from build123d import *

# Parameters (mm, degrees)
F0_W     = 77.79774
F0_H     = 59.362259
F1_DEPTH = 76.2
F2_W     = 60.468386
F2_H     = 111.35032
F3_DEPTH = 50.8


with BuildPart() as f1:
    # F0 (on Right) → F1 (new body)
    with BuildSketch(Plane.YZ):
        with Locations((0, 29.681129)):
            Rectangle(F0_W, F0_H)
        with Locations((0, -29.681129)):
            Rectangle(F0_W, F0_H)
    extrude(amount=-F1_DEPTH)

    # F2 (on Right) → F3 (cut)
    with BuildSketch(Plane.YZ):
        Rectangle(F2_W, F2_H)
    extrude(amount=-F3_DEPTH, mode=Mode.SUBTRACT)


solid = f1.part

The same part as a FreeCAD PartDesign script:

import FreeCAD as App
import Part
import Sketcher
from FreeCAD import Vector
Q = App.Units.Quantity

doc = App.newDocument("Part")
body = doc.addObject("PartDesign::Body", "Body")

# Sketch on YZ plane
sketch1 = doc.addObject("Sketcher::SketchObject", "Sketch")
body.addObject(sketch1)
sketch1.AttachmentSupport = (doc.YZ_Plane, [""])
sketch1.MapMode = "FlatFace"
sketch1.addGeometry([
    Part.LineSegment(Vector(-38.89887, -59.362259, 0), Vector(38.89887, -59.362259, 0)),
    Part.LineSegment(Vector(38.89887, -59.362259, 0), Vector(38.89887, 59.362259, 0)),
    Part.LineSegment(Vector(38.89887, 59.362259, 0), Vector(-38.89887, 59.362259, 0)),
    Part.LineSegment(Vector(-38.89887, 59.362259, 0), Vector(-38.89887, -59.362259, 0)),
], False)
sketch1.addConstraint([
    Sketcher.Constraint("Coincident", 0, 2, 1, 1),
    Sketcher.Constraint("Coincident", 1, 2, 2, 1),
    Sketcher.Constraint("Coincident", 2, 2, 3, 1),
    Sketcher.Constraint("Coincident", 3, 2, 0, 1),
    Sketcher.Constraint("Horizontal", 0),
    Sketcher.Constraint("Vertical", 1),
    Sketcher.Constraint("Horizontal", 2),
    Sketcher.Constraint("Vertical", 3),
    Sketcher.Constraint("Symmetric", 0, 2, 2, 2, -1, 1),
    Sketcher.Constraint("DistanceX", 0, 1, 0, 2, 77.79774),
    Sketcher.Constraint("DistanceY", 1, 1, 1, 2, 118.724517),
])
pad1 = doc.addObject("PartDesign::Pad", "Pad")
body.addObject(pad1)
pad1.Profile = sketch1
pad1.Length = Q("3 in")
pad1.Reversed = True

# Sketch on YZ plane
sketch2 = doc.addObject("Sketcher::SketchObject", "Sketch001")
body.addObject(sketch2)
sketch2.AttachmentSupport = (doc.YZ_Plane, [""])
sketch2.MapMode = "FlatFace"
sketch2.addGeometry([
    Part.LineSegment(Vector(-30.234193, 55.67516, 0), Vector(-30.234193, -55.67516, 0)),
    Part.LineSegment(Vector(-30.234193, -55.67516, 0), Vector(30.234193, -55.67516, 0)),
    Part.LineSegment(Vector(30.234193, -55.67516, 0), Vector(30.234193, 55.67516, 0)),
    Part.LineSegment(Vector(30.234193, 55.67516, 0), Vector(-30.234193, 55.67516, 0)),
], False)
sketch2.addConstraint([
    Sketcher.Constraint("Coincident", 0, 2, 1, 1),
    Sketcher.Constraint("Coincident", 1, 2, 2, 1),
    Sketcher.Constraint("Coincident", 2, 2, 3, 1),
    Sketcher.Constraint("Coincident", 3, 2, 0, 1),
    Sketcher.Constraint("Vertical", 0),
    Sketcher.Constraint("Horizontal", 1),
    Sketcher.Constraint("Vertical", 2),
    Sketcher.Constraint("Horizontal", 3),
    Sketcher.Constraint("Symmetric", 0, 2, 2, 2, -1, 1),
    Sketcher.Constraint("DistanceY", 0, 2, 0, 1, 111.35032),
    Sketcher.Constraint("DistanceX", 1, 1, 1, 2, 60.468386),
])
pocket1 = doc.addObject("PartDesign::Pocket", "Pocket")
body.addObject(pocket1)
pocket1.Profile = sketch2
pocket1.Length = Q("2 in")

doc.recompute()
